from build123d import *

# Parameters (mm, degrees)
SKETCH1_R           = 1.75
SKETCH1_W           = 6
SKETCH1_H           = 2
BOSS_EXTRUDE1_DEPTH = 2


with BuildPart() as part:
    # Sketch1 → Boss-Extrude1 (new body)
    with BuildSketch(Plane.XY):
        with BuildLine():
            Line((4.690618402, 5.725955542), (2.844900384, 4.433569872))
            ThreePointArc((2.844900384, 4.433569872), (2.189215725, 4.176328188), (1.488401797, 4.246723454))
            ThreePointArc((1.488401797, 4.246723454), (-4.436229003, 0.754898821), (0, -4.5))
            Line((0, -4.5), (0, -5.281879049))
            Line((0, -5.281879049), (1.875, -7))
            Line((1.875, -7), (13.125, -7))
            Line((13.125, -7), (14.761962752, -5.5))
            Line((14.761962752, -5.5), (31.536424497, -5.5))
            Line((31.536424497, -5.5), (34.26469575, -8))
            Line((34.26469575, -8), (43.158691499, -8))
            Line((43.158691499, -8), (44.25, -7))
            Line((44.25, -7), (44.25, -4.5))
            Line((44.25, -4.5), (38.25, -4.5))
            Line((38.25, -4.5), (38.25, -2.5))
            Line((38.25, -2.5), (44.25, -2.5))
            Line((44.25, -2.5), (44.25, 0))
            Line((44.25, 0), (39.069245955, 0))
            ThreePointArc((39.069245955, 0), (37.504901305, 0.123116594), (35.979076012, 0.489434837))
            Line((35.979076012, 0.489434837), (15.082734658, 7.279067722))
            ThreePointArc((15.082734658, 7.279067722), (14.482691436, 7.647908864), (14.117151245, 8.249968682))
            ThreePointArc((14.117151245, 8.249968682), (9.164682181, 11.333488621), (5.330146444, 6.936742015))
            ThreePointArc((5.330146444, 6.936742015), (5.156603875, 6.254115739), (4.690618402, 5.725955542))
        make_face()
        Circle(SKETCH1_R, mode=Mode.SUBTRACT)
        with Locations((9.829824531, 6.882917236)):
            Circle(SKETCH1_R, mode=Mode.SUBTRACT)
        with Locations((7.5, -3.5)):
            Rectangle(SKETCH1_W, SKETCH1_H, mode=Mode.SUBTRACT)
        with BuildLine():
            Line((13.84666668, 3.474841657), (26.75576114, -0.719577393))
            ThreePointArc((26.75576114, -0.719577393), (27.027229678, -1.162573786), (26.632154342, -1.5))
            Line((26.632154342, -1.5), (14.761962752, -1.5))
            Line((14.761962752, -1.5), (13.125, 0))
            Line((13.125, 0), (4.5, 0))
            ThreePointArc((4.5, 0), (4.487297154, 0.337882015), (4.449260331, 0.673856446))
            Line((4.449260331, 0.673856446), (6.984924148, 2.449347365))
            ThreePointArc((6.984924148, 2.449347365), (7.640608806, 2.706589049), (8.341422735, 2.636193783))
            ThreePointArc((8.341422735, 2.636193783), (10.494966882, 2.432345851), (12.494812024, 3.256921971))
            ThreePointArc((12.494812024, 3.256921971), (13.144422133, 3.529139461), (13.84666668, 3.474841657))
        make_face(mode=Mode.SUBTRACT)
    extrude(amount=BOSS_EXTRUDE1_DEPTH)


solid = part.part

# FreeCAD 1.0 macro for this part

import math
import FreeCAD as App
import Part
import Sketcher
Q = App.Units.Quantity


def add_polygon(sketch, points):
    """Adds a closed chain of lines whose ends are joined by coincident constraints."""
    first, n = sketch.GeometryCount, len(points)
    for a, b in zip(points, points[1:] + points[:1]):
        sketch.addGeometry(Part.LineSegment(App.Vector(*a, 0), App.Vector(*b, 0)), False)
    for i in range(n):
        sketch.addConstraint(Sketcher.Constraint("Coincident", first + i, 2, first + (i + 1) % n, 1))

doc = App.newDocument("Part")
body = doc.addObject("PartDesign::Body", "Body")

# Sketch on XY plane
sketch1 = body.newObject("Sketcher::SketchObject", "Sketch")
sketch1.AttachmentSupport = (doc.getObject("XY_Plane"), [""])
sketch1.MapMode = "FlatFace"
sketch1.addGeometry(Part.LineSegment(App.Vector(4.690618, 5.725956, 0), App.Vector(2.8449, 4.43357, 0)), False)  # 0
sketch1.addGeometry(Part.ArcOfCircle(Part.Circle(App.Vector(1.984536, 5.662298, 0), App.Vector(0, 0, 1), 1.5), math.radians(-109.314665), math.radians(-55)), False)  # 1
sketch1.addGeometry(Part.ArcOfCircle(Part.Circle(App.Vector(0, 0, 0), App.Vector(0, 0, 1), 4.5), math.radians(70.685335), math.radians(270)), False)  # 2
sketch1.addGeometry(Part.LineSegment(App.Vector(0, -4.5, 0), App.Vector(0, -5.281879, 0)), False)  # 3
sketch1.addGeometry(Part.LineSegment(App.Vector(0, -5.281879, 0), App.Vector(1.875, -7, 0)), False)  # 4
sketch1.addGeometry(Part.LineSegment(App.Vector(1.875, -7, 0), App.Vector(13.125, -7, 0)), False)  # 5
sketch1.addGeometry(Part.LineSegment(App.Vector(13.125, -7, 0), App.Vector(14.761963, -5.5, 0)), False)  # 6
sketch1.addGeometry(Part.LineSegment(App.Vector(14.761963, -5.5, 0), App.Vector(31.536424, -5.5, 0)), False)  # 7
sketch1.addGeometry(Part.LineSegment(App.Vector(31.536424, -5.5, 0), App.Vector(34.264696, -8, 0)), False)  # 8
sketch1.addGeometry(Part.LineSegment(App.Vector(34.264696, -8, 0), App.Vector(43.158691, -8, 0)), False)  # 9
sketch1.addGeometry(Part.LineSegment(App.Vector(43.158691, -8, 0), App.Vector(44.25, -7, 0)), False)  # 10
sketch1.addGeometry(Part.LineSegment(App.Vector(44.25, -7, 0), App.Vector(44.25, -4.5, 0)), False)  # 11
sketch1.addGeometry(Part.LineSegment(App.Vector(44.25, -4.5, 0), App.Vector(38.25, -4.5, 0)), False)  # 12
sketch1.addGeometry(Part.LineSegment(App.Vector(38.25, -4.5, 0), App.Vector(38.25, -2.5, 0)), False)  # 13
sketch1.addGeometry(Part.LineSegment(App.Vector(38.25, -2.5, 0), App.Vector(44.25, -2.5, 0)), False)  # 14
sketch1.addGeometry(Part.LineSegment(App.Vector(44.25, -2.5, 0), App.Vector(44.25, 0, 0)), False)  # 15
sketch1.addGeometry(Part.LineSegment(App.Vector(44.25, 0, 0), App.Vector(39.069246, 0, 0)), False)  # 16
sketch1.addGeometry(Part.ArcOfCircle(Part.Circle(App.Vector(39.069246, 10, 0), App.Vector(0, 0, 1), 10), math.radians(-108), math.radians(-90)), False)  # 17
sketch1.addGeometry(Part.LineSegment(App.Vector(35.979076, 0.489435, 0), App.Vector(15.082735, 7.279068, 0)), False)  # 18
sketch1.addGeometry(Part.ArcOfCircle(Part.Circle(App.Vector(15.54626, 8.705652, 0), App.Vector(0, 0, 1), 1.5), math.radians(-162.314665), math.radians(-108)), False)  # 19
sketch1.addGeometry(Part.ArcOfCircle(Part.Circle(App.Vector(9.829825, 6.882917, 0), App.Vector(0, 0, 1), 4.5), math.radians(17.685335), math.radians(179.314665)), False)  # 20
sketch1.addGeometry(Part.ArcOfCircle(Part.Circle(App.Vector(3.830254, 6.954684, 0), App.Vector(0, 0, 1), 1.5), math.radians(-55), math.radians(-0.685335)), False)  # 21
add_polygon(sketch1, [(10.5, -4.5), (4.5, -4.5), (4.5, -2.5), (10.5, -2.5)])  # lines 22-25
sketch1.addGeometry(Part.Circle(App.Vector(0, 0, 0), App.Vector(0, 0, 1), 1.75), False)  # 26
sketch1.addGeometry(Part.ArcOfCircle(Part.Circle(App.Vector(13.383141, 2.048257, 0), App.Vector(0, 0, 1), 1.5), math.radians(72), math.radians(126.314665)), False)  # 27
sketch1.addGeometry(Part.LineSegment(App.Vector(13.846667, 3.474842, 0), App.Vector(26.755761, -0.719577, 0)), False)  # 28
sketch1.addGeometry(Part.ArcOfCircle(Part.Circle(App.Vector(26.632154, -1.1, 0), App.Vector(0, 0, 1), 0.4), math.radians(-90), math.radians(72)), False)  # 29
sketch1.addGeometry(Part.LineSegment(App.Vector(26.632154, -1.5, 0), App.Vector(14.761963, -1.5, 0)), False)  # 30
sketch1.addGeometry(Part.LineSegment(App.Vector(14.761963, -1.5, 0), App.Vector(13.125, 0, 0)), False)  # 31
sketch1.addGeometry(Part.LineSegment(App.Vector(13.125, 0, 0), App.Vector(4.5, 0, 0)), False)  # 32
sketch1.addGeometry(Part.ArcOfCircle(Part.Circle(App.Vector(0, 0, 0), App.Vector(0, 0, 1), 4.5), math.radians(0), math.radians(8.6122)), False)  # 33
sketch1.addGeometry(Part.LineSegment(App.Vector(4.44926, 0.673856, 0), App.Vector(6.984924, 2.449347, 0)), False)  # 34
sketch1.addGeometry(Part.ArcOfCircle(Part.Circle(App.Vector(7.845289, 1.220619, 0), App.Vector(0, 0, 1), 1.5), math.radians(70.685335), math.radians(125)), False)  # 35
sketch1.addGeometry(Part.ArcOfCircle(Part.Circle(App.Vector(9.829825, 6.882917, 0), App.Vector(0, 0, 1), 4.5), math.radians(-109.314665), math.radians(-53.685335)), False)  # 36
sketch1.addGeometry(Part.Circle(App.Vector(9.829825, 6.882917, 0), App.Vector(0, 0, 1), 1.75), False)  # 37
sketch1.addConstraint(Sketcher.Constraint("Tangent", 0, 2, 1, 2))
sketch1.addConstraint(Sketcher.Constraint("Tangent", 1, 1, 2, 1))
sketch1.addConstraint(Sketcher.Constraint("Coincident", 2, 2, 3, 1))
sketch1.addConstraint(Sketcher.Constraint("Coincident", 3, 2, 4, 1))
sketch1.addConstraint(Sketcher.Constraint("Coincident", 4, 2, 5, 1))
sketch1.addConstraint(Sketcher.Constraint("Coincident", 5, 2, 6, 1))
sketch1.addConstraint(Sketcher.Constraint("Coincident", 6, 2, 7, 1))
sketch1.addConstraint(Sketcher.Constraint("Coincident", 7, 2, 8, 1))
sketch1.addConstraint(Sketcher.Constraint("Coincident", 8, 2, 9, 1))
sketch1.addConstraint(Sketcher.Constraint("Coincident", 9, 2, 10, 1))
sketch1.addConstraint(Sketcher.Constraint("Coincident", 10, 2, 11, 1))
sketch1.addConstraint(Sketcher.Constraint("Coincident", 11, 2, 12, 1))
sketch1.addConstraint(Sketcher.Constraint("Coincident", 12, 2, 13, 1))
sketch1.addConstraint(Sketcher.Constraint("Coincident", 13, 2, 14, 1))
sketch1.addConstraint(Sketcher.Constraint("Coincident", 14, 2, 15, 1))
sketch1.addConstraint(Sketcher.Constraint("Coincident", 15, 2, 16, 1))
sketch1.addConstraint(Sketcher.Constraint("Tangent", 16, 2, 17, 2))
sketch1.addConstraint(Sketcher.Constraint("Tangent", 17, 1, 18, 1))
sketch1.addConstraint(Sketcher.Constraint("Tangent", 18, 2, 19, 2))
sketch1.addConstraint(Sketcher.Constraint("Tangent", 19, 1, 20, 1))
sketch1.addConstraint(Sketcher.Constraint("Tangent", 20, 2, 21, 2))
sketch1.addConstraint(Sketcher.Constraint("Tangent", 21, 1, 0, 1))
sketch1.addConstraint(Sketcher.Constraint("Tangent", 27, 1, 28, 1))
sketch1.addConstraint(Sketcher.Constraint("Tangent", 28, 2, 29, 2))
sketch1.addConstraint(Sketcher.Constraint("Tangent", 29, 1, 30, 1))
sketch1.addConstraint(Sketcher.Constraint("Coincident", 30, 2, 31, 1))
sketch1.addConstraint(Sketcher.Constraint("Coincident", 31, 2, 32, 1))
sketch1.addConstraint(Sketcher.Constraint("Coincident", 32, 2, 33, 1))
sketch1.addConstraint(Sketcher.Constraint("Coincident", 33, 2, 34, 1))
sketch1.addConstraint(Sketcher.Constraint("Tangent", 34, 2, 35, 2))
sketch1.addConstraint(Sketcher.Constraint("Tangent", 35, 1, 36, 1))
sketch1.addConstraint(Sketcher.Constraint("Tangent", 36, 2, 27, 2))
sketch1.addConstraint(Sketcher.Constraint("Vertical", 3))
sketch1.addConstraint(Sketcher.Constraint("Horizontal", 5))
sketch1.addConstraint(Sketcher.Constraint("Horizontal", 7))
sketch1.addConstraint(Sketcher.Constraint("Horizontal", 9))
sketch1.addConstraint(Sketcher.Constraint("Vertical", 11))
sketch1.addConstraint(Sketcher.Constraint("Horizontal", 12))
sketch1.addConstraint(Sketcher.Constraint("Vertical", 13))
sketch1.addConstraint(Sketcher.Constraint("Horizontal", 14))
sketch1.addConstraint(Sketcher.Constraint("Vertical", 15))
sketch1.addConstraint(Sketcher.Constraint("Horizontal", 16))
sketch1.addConstraint(Sketcher.Constraint("Horizontal", 22))
sketch1.addConstraint(Sketcher.Constraint("Vertical", 23))
sketch1.addConstraint(Sketcher.Constraint("Horizontal", 24))
sketch1.addConstraint(Sketcher.Constraint("Vertical", 25))
sketch1.addConstraint(Sketcher.Constraint("Horizontal", 30))
sketch1.addConstraint(Sketcher.Constraint("Horizontal", 32))
sketch1.addConstraint(Sketcher.Constraint("Coincident", 2, 3, -1, 1))
sketch1.addConstraint(Sketcher.Constraint("Coincident", 26, 3, -1, 1))
sketch1.addConstraint(Sketcher.Constraint("Coincident", 33, 3, -1, 1))
sketch1.addConstraint(Sketcher.Constraint("Coincident", 36, 3, 20, 3))
sketch1.addConstraint(Sketcher.Constraint("Coincident", 37, 3, 20, 3))
sketch1.addConstraint(Sketcher.Constraint("Equal", 1, 19))
sketch1.addConstraint(Sketcher.Constraint("Equal", 2, 20))
sketch1.addConstraint(Sketcher.Constraint("Equal", 19, 21))
sketch1.addConstraint(Sketcher.Constraint("Equal", 21, 27))
sketch1.addConstraint(Sketcher.Constraint("Equal", 20, 33))
sketch1.addConstraint(Sketcher.Constraint("Equal", 27, 35))
sketch1.addConstraint(Sketcher.Constraint("Equal", 33, 36))
sketch1.addConstraint(Sketcher.Constraint("Equal", 26, 37))
sketch1.addConstraint(Sketcher.Constraint("PointOnObject", 2, 2, -2))
sketch1.addConstraint(Sketcher.Constraint("PointOnObject", 15, 2, -1))
sketch1.addConstraint(Sketcher.Constraint("PointOnObject", 31, 2, -1))
sketch1.addConstraint(Sketcher.Constraint("Parallel", 4, 8))
sketch1.addConstraint(Sketcher.Constraint("Parallel", 6, 10))
sketch1.addConstraint(Sketcher.Constraint("Parallel", 18, 28))
sketch1.addConstraint(Sketcher.Constraint("Parallel", 8, 31))
sketch1.addConstraint(Sketcher.Constraint("Parallel", 0, 34))
sketch1.addConstraint(Sketcher.Constraint("Horizontal", 5, 2, 10, 2))
sketch1.addConstraint(Sketcher.Constraint("Horizontal", 2, 2, 11, 2))
sketch1.addConstraint(Sketcher.Constraint("Horizontal", 12, 2, 22, 2))
sketch1.addConstraint(Sketcher.Constraint("Horizontal", 14, 2, 23, 2))
sketch1.addConstraint(Sketcher.Constraint("Vertical", 11, 2, 14, 2))
sketch1.addConstraint(Sketcher.Constraint("Vertical", 6, 2, 30, 2))
sketch1.addConstraint(Sketcher.Constraint("Vertical", 5, 2, 31, 2))
sketch1.addConstraint(Sketcher.Constraint("Vertical", 23, 2, 32, 2))
sketch1.addConstraint(Sketcher.Constraint("Equal", 14, 22))
sketch1.addConstraint(Sketcher.Constraint("Equal", 11, 15))
sketch1.addConstraint(Sketcher.Constraint("Equal", 6, 31))
sketch1.addConstraint(Sketcher.Constraint("Radius", 17, Q("10 mm")))
sketch1.addConstraint(Sketcher.Constraint("Diameter", 26, Q("3.5 mm")))
sketch1.addConstraint(Sketcher.Constraint("Radius", 1, Q("1.5 mm")))
sketch1.addConstraint(Sketcher.Constraint("Radius", 2, Q("4.5 mm")))
sketch1.addConstraint(Sketcher.Constraint("Radius", 29, Q("0.4 mm")))
sketch1.addConstraint(Sketcher.Constraint("DistanceX", 12, 2, 12, 1, Q("6 mm")))
sketch1.addConstraint(Sketcher.Constraint("DistanceY", 13, 1, 13, 2, Q("2 mm")))
sketch1.addConstraint(Sketcher.Constraint("Angle", 0, Q("-145 deg")))
sketch1.addConstraint(Sketcher.Constraint("Angle", 18, Q("162 deg")))
sketch1.addConstraint(Sketcher.Constraint("DistanceY", 8, 2, -1, 1, Q("8 mm")))
sketch1.addConstraint(Sketcher.Constraint("Angle", 4, Q("-42.5 deg")))
sketch1.addConstraint(Sketcher.Constraint("DistanceY", 7, 2, 11, 2, Q("1 mm")))
sketch1.addConstraint(Sketcher.Constraint("DistanceX", 5, 1, 5, 2, Q("11.25 mm")))
sketch1.addConstraint(Sketcher.Constraint("DistanceX", 32, 2, 32, 1, Q("8.625 mm")))
sketch1.addConstraint(Sketcher.Constraint("DistanceX", -1, 1, 10, 2, Q("44.25 mm")))
sketch1.addConstraint(Sketcher.Constraint("DistanceX", 7, 1, 7, 2, Q("16.774462 mm")))
sketch1.addConstraint(Sketcher.Constraint("DistanceX", 30, 2, 30, 1, Q("11.870192 mm")))
sketch1.addConstraint(Sketcher.Constraint("DistanceX", -1, 1, 0, 2, Q("2.8449 mm")))
sketch1.addConstraint(Sketcher.Constraint("DistanceX", 21, 3, 29, 3, Q("22.801901 mm")))
sketch1.addConstraint(Sketcher.Constraint("DistanceY", 18, 2, 19, 1, Q("0.970901 mm")))
sketch1.addConstraint(Sketcher.Constraint("DistanceX", 34, 2, 35, 1, Q("1.356499 mm")))
sketch1.addConstraint(Sketcher.Constraint("DistanceX", 16, 2, 16, 1, Q("5.180754 mm")))
pad1 = body.newObject("PartDesign::Pad", "Pad")
pad1.Profile = sketch1
pad1.Length = 2

doc.recompute()
